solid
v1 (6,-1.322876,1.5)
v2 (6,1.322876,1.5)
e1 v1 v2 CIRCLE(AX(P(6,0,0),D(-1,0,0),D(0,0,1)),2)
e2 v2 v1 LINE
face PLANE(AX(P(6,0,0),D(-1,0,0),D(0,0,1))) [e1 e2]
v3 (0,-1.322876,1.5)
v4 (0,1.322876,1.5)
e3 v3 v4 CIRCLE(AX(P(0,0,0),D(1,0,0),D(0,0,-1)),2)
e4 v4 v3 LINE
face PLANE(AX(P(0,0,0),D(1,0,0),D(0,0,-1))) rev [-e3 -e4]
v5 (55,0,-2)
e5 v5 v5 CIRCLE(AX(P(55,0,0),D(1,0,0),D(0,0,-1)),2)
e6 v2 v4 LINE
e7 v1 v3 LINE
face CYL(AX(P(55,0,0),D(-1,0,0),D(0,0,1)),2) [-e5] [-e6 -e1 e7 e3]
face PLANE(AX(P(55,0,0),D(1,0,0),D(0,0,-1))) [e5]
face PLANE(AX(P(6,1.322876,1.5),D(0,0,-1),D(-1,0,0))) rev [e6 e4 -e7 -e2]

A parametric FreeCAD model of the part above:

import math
import FreeCAD as App
import Part
import Sketcher

doc = App.newDocument("Part")
params = doc.addObject("Spreadsheet::Sheet", "Params")
for row, (alias, value) in enumerate([
    ("sketch1_diameter", "4 mm"),
    ("pad1_length", "55 mm"),
    ("sketch2_radius", "2 mm"),
    ("pocket1_length", "6 mm"),
], start=1):
    params.set(f"A{row}", alias)
    params.set(f"B{row}", "=" + value)
    params.setAlias(f"B{row}", alias)

body = doc.addObject("PartDesign::Body", "Body")

# Sketch on YZ plane
sketch1 = body.newObject("Sketcher::SketchObject", "Sketch")
sketch1.AttachmentSupport = (doc.getObject("YZ_Plane"), [""])
sketch1.MapMode = "FlatFace"
sketch1.addGeometry(Part.Circle(App.Vector(0, 0, 0), App.Vector(0, 0, 1), 2), False)
sketch1.addConstraint(Sketcher.Constraint("Coincident", 0, 3, -1, 1))
sketch1.addConstraint(Sketcher.Constraint("Diameter", 0, 4.0))
sketch1.setExpression("Constraints[1]", "Params.sketch1_diameter")
pad1 = body.newObject("PartDesign::Pad", "Pad")
pad1.Profile = sketch1
pad1.setExpression("Length", "Params.pad1_length")

# Sketch on YZ plane
sketch2 = body.newObject("Sketcher::SketchObject", "Sketch001")
sketch2.AttachmentSupport = (doc.getObject("YZ_Plane"), [""])
sketch2.MapMode = "FlatFace"
sketch2.addGeometry(Part.LineSegment(App.Vector(1.3, 1.5, 0), App.Vector(-1.3, 1.5, 0)), False)
sketch2.addGeometry(Part.ArcOfCircle(Part.Circle(App.Vector(0, 0, 0), App.Vector(0, 0, 1), 2), math.radians(49), math.radians(131)), False)
sketch2.addConstraint(Sketcher.Constraint("Coincident", 0, 1, 1, 1))
sketch2.addConstraint(Sketcher.Constraint("Coincident", 1, 2, 0, 2))
sketch2.addConstraint(Sketcher.Constraint("Horizontal", 0))
sketch2.addConstraint(Sketcher.Constraint("Coincident", 1, 3, -1, 1))
sketch2.addConstraint(Sketcher.Constraint("Radius", 1, 2.0))
sketch2.addConstraint(Sketcher.Constraint("DistanceY", -1, 1, 0, 1, 1.5))
sketch2.setExpression("Constraints[4]", "Params.sketch2_radius")
pocket1 = body.newObject("PartDesign::Pocket", "Pocket")
pocket1.Profile = sketch2
pocket1.setExpression("Length", "Params.pocket1_length")
pocket1.Reversed = True

doc.recompute()
